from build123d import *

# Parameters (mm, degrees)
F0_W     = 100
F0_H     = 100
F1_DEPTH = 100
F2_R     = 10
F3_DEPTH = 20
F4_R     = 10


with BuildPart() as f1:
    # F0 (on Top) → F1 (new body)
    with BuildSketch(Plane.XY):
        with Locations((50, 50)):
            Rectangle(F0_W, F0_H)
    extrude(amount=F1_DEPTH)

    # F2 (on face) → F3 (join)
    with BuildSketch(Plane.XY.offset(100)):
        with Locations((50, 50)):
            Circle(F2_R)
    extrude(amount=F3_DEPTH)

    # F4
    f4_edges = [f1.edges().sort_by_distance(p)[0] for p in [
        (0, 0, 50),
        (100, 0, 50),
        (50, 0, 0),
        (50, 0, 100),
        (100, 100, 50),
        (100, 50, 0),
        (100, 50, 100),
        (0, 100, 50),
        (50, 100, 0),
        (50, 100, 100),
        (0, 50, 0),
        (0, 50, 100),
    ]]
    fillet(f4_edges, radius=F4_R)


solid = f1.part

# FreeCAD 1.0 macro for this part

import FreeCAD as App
import Part
import Sketcher
from FreeCAD import Vector
Q = App.Units.Quantity


def edges_at(feature, points):
    """Names of the edges that pass closest to the given points."""
    edges = feature.Shape.Edges
    near = lambda p: min(range(len(edges)), key=lambda i: edges[i].distToShape(Part.Vertex(*p))[0])
    return sorted({f"Edge{near(p) + 1}" for p in points})


def add_polygon(sketch, points):
    """Adds a closed chain of lines whose ends are joined by coincident constraints."""
    first, n = sketch.GeometryCount, len(points)
    for a, b in zip(points, points[1:] + points[:1]):
        sketch.addGeometry(Part.LineSegment(App.Vector(*a, 0), App.Vector(*b, 0)), False)
    for i in range(n):
        sketch.addConstraint(Sketcher.Constraint("Coincident", first + i, 2, first + (i + 1) % n, 1))

doc = App.newDocument("Part")
body = doc.addObject("PartDesign::Body", "Body")

# Sketch on XY plane
sketch1 = body.newObject("Sketcher::SketchObject", "Sketch")
sketch1.AttachmentSupport = (doc.getObject("XY_Plane"), [""])
sketch1.MapMode = "FlatFace"
add_polygon(sketch1, [(0, 100), (0, 0), (100, 0), (100, 100)])  # lines 0-3
sketch1.addConstraint([
    Sketcher.Constraint("Vertical", 0),
    Sketcher.Constraint("Horizontal", 1),
    Sketcher.Constraint("Vertical", 2),
    Sketcher.Constraint("Horizontal", 3),
    Sketcher.Constraint("Coincident", 0, 2, -1, 1),
    Sketcher.Constraint("Equal", 3, 0),
    Sketcher.Constraint("DistanceX", 1, 1, 1, 2, Q("100 mm")),
])
pad1 = body.newObject("PartDesign::Pad", "Pad")
pad1.Profile = sketch1
pad1.Length = 100

# Sketch on XY plane
sketch2 = body.newObject("Sketcher::SketchObject", "Sketch001")
sketch2.AttachmentSupport = (doc.getObject("XY_Plane"), [""])
sketch2.MapMode = "FlatFace"
sketch2.AttachmentOffset = App.Placement(Vector(0, 0, 100), App.Rotation())
sketch2.addGeometry(Part.Circle(Vector(50, 50, 0), Vector(0, 0, 1), 10), False)
sketch2.addConstraint([
    Sketcher.Constraint("Diameter", 0, Q("20 mm")),
    Sketcher.Constraint("DistanceX", -1, 1, 0, 3, Q("50 mm")),
    Sketcher.Constraint("DistanceY", -1, 1, 0, 3, Q("50 mm")),
])
pad2 = body.newObject("PartDesign::Pad", "Pad001")
pad2.Profile = sketch2
pad2.Length = 20
doc.recompute()

fillet = body.newObject("PartDesign::Fillet", "Fillet")
fillet.Base = (pad2, edges_at(pad2, [
    (0, 0, 50),
    (100, 0, 50),
    (50, 0, 0),
    (50, 0, 100),
    (100, 100, 50),
    (100, 50, 0),
    (100, 50, 100),
    (0, 100, 50),
    (50, 100, 0),
    (50, 100, 100),
    (0, 50, 0),
    (0, 50, 100),
]))
fillet.Radius = 10

doc.recompute()
